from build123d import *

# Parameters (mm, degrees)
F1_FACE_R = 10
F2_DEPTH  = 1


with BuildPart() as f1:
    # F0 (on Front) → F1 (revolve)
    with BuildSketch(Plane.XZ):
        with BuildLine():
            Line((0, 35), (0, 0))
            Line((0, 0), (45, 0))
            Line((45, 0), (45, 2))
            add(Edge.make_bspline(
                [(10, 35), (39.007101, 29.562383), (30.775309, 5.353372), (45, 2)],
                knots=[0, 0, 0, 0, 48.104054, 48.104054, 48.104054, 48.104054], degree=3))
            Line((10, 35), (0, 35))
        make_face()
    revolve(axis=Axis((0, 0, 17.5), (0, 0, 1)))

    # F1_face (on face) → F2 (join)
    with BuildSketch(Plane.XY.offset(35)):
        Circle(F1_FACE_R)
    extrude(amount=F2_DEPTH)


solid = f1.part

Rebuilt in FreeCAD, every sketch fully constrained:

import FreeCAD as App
import Part
import Sketcher
Q = App.Units.Quantity

doc = App.newDocument("Part")
params = doc.addObject("Spreadsheet::Sheet", "Params")
for row, (alias, value) in enumerate([
    ("revolution_angle", "360 deg"),
    ("sketch2_diameter", "20 mm"),
    ("pad1_length", "1 mm"),
], start=1):
    params.set(f"A{row}", alias)
    params.set(f"B{row}", "=" + value)
    params.setAlias(f"B{row}", alias)

body = doc.addObject("PartDesign::Body", "Body")

# Sketch on XZ plane
sketch1 = doc.addObject("Sketcher::SketchObject", "Sketch")
body.addObject(sketch1)
sketch1.AttachmentSupport = (doc.XZ_Plane, [""])
sketch1.MapMode = "FlatFace"
sketch1.addGeometry([
    Part.LineSegment(App.Vector(0, 35, 0), App.Vector(0, 0, 0)),  # 0
    Part.LineSegment(App.Vector(0, 0, 0), App.Vector(45, 0, 0)),  # 1
    Part.LineSegment(App.Vector(45, 0, 0), App.Vector(45, 2, 0)),  # 2
    Part.BSplineCurve([App.Vector(10, 35, 0), App.Vector(39.007101, 29.562383, 0), App.Vector(30.775309, 5.353372, 0), App.Vector(45, 2, 0)], [4, 4], [0, 48.104054], False, 3, [1, 1, 1, 1], False),  # 3
    Part.LineSegment(App.Vector(10, 35, 0), App.Vector(0, 35, 0)),  # 4
], False)
sketch1.addConstraint([
    Sketcher.Constraint("Block", 3),
    Sketcher.Constraint("Coincident", 0, 2, 1, 1),
    Sketcher.Constraint("Coincident", 1, 2, 2, 1),
    Sketcher.Constraint("Coincident", 2, 2, 3, 2),
    Sketcher.Constraint("Coincident", 3, 1, 4, 1),
    Sketcher.Constraint("Coincident", 4, 2, 0, 1),
    Sketcher.Constraint("Vertical", 0),
    Sketcher.Constraint("Horizontal", 1),
    Sketcher.Constraint("Vertical", 2),
    Sketcher.Constraint("Horizontal", 4),
    Sketcher.Constraint("Coincident", 0, 2, -1, 1),
])
revolution = doc.addObject("PartDesign::Revolution", "Revolution")
body.addObject(revolution)
revolution.Profile = sketch1
revolution.ReferenceAxis = (sketch1, ["V_Axis"])
revolution.setExpression("Angle", "Params.revolution_angle")

# Sketch on XY plane
sketch2 = doc.addObject("Sketcher::SketchObject", "Sketch001")
body.addObject(sketch2)
sketch2.AttachmentSupport = (doc.XY_Plane, [""])
sketch2.MapMode = "FlatFace"
sketch2.AttachmentOffset = App.Placement(App.Vector(0, 0, 35), App.Rotation())
sketch2.addGeometry(Part.Circle(App.Vector(0, 0, 0), App.Vector(0, 0, 1), 10), False)
sketch2.addConstraint([
    Sketcher.Constraint("Coincident", 0, 3, -1, 1),
    Sketcher.Constraint("Diameter", 0, Q("20 mm")),
])
sketch2.setExpression("Constraints[1]", "Params.sketch2_diameter")
pad1 = doc.addObject("PartDesign::Pad", "Pad")
body.addObject(pad1)
pad1.Profile = sketch2
pad1.setExpression("Length", "Params.pad1_length")

doc.recompute()
